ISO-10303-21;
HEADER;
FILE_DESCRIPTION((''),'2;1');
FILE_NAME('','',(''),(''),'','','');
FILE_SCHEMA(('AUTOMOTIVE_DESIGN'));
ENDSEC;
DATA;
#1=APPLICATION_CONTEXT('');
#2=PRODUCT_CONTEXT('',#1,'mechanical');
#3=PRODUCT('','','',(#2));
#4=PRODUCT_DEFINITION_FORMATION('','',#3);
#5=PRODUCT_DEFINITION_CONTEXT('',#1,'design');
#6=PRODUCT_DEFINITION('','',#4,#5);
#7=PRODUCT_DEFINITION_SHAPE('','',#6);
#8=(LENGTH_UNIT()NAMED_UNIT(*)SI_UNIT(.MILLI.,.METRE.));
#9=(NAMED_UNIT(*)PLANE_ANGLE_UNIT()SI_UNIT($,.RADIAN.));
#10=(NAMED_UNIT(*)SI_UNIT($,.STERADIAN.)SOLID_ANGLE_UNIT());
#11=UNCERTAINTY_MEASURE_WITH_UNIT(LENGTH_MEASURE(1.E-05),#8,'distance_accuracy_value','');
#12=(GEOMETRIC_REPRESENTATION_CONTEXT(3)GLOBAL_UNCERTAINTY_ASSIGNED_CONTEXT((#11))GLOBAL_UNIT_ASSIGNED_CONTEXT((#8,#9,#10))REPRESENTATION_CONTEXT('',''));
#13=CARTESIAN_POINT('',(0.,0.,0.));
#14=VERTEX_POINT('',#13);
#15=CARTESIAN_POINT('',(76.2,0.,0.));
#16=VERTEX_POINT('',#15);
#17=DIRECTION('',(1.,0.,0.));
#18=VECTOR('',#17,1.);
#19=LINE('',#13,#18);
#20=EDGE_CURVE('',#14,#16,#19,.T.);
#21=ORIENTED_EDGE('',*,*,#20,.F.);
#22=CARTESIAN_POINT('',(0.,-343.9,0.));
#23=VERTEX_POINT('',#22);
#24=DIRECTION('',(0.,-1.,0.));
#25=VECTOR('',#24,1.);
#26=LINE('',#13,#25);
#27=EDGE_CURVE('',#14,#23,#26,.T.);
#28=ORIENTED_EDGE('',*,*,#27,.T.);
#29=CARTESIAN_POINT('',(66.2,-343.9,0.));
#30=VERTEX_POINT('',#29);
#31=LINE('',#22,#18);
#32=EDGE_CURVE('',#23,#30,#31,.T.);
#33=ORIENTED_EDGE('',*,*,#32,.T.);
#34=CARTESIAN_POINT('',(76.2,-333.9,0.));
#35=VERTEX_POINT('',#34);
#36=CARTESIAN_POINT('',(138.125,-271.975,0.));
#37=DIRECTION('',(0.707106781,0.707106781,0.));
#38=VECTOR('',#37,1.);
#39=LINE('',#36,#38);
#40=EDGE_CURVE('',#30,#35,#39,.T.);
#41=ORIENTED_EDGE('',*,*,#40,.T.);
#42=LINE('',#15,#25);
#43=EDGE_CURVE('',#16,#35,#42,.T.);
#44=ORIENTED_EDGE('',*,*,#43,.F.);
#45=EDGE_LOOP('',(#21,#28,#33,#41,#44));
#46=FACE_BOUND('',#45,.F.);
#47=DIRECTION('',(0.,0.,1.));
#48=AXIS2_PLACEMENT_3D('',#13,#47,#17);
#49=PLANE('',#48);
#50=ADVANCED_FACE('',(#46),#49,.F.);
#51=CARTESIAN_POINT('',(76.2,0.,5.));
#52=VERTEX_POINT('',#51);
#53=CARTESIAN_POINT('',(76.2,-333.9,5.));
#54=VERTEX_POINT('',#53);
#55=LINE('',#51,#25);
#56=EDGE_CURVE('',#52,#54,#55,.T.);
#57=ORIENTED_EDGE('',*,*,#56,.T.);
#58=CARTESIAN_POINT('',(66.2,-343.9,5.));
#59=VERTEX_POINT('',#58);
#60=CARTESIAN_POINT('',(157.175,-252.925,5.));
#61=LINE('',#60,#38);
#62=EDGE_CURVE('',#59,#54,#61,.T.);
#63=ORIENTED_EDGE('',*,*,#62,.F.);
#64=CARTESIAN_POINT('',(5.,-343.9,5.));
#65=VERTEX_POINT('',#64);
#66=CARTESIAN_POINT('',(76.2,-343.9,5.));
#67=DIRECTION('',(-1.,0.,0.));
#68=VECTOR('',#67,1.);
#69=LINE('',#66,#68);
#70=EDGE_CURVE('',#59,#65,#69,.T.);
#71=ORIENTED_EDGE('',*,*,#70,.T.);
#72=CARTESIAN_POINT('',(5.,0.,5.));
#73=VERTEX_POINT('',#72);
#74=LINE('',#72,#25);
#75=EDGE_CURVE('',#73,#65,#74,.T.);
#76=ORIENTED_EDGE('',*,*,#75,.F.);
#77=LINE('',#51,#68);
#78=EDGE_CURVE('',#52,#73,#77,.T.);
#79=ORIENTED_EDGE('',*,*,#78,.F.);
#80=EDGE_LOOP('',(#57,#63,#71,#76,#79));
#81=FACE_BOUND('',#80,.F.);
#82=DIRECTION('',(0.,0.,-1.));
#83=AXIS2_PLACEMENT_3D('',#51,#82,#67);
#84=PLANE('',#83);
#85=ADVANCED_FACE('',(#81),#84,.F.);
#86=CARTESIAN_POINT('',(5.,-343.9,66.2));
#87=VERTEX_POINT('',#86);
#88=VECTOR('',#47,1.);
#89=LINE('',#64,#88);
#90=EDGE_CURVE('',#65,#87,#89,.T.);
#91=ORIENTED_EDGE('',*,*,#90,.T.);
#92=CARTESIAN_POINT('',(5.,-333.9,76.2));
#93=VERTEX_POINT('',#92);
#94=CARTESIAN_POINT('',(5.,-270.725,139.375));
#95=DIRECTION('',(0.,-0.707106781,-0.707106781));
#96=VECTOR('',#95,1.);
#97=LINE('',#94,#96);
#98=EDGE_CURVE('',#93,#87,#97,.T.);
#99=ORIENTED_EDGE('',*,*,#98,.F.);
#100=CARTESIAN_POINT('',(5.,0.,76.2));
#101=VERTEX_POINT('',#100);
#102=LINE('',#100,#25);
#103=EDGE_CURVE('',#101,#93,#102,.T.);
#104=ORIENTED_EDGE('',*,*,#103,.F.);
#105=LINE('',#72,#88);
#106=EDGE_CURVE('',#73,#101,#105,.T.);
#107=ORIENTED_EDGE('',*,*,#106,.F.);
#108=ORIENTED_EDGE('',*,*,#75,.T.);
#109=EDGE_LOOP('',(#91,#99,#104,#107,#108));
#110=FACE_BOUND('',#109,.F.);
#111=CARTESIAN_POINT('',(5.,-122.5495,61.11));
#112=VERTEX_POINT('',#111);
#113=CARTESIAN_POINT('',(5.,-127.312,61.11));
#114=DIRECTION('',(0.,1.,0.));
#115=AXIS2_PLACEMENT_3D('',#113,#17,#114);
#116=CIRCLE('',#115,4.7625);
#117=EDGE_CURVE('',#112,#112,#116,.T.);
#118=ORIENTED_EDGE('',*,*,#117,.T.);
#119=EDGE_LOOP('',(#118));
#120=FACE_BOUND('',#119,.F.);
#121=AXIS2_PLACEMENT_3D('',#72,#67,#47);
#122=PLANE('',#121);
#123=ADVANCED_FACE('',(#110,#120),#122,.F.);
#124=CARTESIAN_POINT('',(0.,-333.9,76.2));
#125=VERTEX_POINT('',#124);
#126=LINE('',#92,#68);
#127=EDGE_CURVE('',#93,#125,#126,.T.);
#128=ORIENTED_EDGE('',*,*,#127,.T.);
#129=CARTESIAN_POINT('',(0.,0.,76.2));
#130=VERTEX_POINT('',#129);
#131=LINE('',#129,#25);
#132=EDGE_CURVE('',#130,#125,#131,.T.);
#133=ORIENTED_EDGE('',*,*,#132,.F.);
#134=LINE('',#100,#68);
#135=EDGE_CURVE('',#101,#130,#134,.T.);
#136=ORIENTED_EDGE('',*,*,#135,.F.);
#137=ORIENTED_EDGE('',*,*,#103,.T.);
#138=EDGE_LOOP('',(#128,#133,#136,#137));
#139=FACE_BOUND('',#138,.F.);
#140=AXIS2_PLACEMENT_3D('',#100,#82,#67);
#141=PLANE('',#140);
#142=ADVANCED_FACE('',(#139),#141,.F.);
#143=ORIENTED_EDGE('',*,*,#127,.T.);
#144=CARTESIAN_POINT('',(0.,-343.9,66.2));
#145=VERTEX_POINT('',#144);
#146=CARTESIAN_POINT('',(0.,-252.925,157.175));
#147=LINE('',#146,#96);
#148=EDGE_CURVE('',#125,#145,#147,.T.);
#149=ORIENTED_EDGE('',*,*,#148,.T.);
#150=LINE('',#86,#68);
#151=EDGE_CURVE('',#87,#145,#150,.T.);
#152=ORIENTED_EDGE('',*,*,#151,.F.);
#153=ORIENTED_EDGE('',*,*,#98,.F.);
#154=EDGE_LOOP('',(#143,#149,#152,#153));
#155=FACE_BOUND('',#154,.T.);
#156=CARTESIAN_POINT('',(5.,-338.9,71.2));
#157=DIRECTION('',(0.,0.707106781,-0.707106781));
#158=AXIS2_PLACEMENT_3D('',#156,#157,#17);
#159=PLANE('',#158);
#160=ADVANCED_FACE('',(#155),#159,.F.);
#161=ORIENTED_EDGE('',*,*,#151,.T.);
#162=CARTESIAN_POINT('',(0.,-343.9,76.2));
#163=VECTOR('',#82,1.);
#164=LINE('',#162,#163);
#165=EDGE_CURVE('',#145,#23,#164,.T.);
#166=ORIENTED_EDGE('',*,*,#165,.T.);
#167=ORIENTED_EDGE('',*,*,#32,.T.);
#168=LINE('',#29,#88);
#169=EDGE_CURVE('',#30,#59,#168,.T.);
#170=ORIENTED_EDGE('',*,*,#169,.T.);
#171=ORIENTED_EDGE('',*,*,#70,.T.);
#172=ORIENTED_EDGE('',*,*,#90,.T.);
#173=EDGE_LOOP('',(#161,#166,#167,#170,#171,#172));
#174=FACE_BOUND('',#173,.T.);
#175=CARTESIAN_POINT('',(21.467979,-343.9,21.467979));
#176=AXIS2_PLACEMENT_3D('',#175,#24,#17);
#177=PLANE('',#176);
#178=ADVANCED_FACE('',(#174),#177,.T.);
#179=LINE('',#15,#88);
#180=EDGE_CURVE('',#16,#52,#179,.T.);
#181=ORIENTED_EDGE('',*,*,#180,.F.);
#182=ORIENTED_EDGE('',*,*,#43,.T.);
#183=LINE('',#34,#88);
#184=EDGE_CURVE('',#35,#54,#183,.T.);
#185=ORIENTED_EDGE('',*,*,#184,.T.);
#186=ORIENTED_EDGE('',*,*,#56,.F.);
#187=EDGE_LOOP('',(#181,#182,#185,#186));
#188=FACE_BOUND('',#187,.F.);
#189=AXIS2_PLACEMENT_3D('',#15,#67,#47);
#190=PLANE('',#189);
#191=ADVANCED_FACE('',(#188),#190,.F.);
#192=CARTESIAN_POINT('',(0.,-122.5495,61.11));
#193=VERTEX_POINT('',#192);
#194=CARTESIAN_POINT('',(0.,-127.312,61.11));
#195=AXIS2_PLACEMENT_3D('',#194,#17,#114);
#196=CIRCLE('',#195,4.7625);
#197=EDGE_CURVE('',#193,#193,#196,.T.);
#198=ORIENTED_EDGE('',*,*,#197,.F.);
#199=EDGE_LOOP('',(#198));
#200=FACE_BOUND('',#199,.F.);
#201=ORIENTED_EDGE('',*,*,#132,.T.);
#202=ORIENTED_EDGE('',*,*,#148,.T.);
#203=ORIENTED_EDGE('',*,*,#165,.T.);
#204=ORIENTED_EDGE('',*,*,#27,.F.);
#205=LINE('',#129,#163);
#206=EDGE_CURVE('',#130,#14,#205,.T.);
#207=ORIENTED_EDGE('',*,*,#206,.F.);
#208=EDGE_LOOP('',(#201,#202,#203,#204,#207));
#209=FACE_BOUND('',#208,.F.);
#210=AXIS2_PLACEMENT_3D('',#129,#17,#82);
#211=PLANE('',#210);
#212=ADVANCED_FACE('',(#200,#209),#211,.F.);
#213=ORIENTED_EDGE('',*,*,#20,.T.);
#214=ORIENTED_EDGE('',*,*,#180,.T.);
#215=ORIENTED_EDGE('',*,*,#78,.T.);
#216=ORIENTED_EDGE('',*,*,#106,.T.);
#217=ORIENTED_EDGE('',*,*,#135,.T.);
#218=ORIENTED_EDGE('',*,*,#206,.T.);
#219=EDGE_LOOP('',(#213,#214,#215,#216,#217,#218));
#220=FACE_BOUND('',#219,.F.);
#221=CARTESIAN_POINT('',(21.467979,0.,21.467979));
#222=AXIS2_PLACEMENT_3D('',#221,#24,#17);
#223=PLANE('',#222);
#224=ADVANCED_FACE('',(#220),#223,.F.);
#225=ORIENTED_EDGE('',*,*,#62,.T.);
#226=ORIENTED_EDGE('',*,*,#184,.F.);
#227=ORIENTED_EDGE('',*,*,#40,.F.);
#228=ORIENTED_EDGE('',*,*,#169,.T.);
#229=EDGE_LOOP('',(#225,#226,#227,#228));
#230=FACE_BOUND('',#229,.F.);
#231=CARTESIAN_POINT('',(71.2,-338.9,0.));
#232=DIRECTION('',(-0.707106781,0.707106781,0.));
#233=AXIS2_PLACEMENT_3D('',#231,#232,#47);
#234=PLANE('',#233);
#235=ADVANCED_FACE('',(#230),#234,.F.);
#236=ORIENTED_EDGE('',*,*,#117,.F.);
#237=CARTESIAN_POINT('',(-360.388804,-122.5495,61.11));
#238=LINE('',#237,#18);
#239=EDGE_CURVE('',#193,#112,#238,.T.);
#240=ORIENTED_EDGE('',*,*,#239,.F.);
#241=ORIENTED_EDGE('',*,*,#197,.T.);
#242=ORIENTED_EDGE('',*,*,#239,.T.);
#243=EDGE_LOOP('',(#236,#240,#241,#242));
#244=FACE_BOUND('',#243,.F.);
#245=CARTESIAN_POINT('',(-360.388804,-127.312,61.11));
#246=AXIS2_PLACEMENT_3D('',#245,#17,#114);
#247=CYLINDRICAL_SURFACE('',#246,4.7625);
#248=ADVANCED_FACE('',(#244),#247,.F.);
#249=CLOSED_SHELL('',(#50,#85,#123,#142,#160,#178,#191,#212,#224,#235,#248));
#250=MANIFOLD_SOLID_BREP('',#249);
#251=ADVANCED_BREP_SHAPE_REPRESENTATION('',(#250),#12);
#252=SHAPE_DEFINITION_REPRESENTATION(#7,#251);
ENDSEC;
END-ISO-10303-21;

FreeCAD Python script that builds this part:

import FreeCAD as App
import Part
import Sketcher
from FreeCAD import Vector
Q = App.Units.Quantity


def edges_at(feature, points):
    """Names of the edges that pass closest to the given points."""
    edges = feature.Shape.Edges
    near = lambda p: min(range(len(edges)), key=lambda i: edges[i].distToShape(Part.Vertex(*p))[0])
    return sorted({f"Edge{near(p) + 1}" for p in points})

doc = App.newDocument("Part")
params = doc.addObject("Spreadsheet::Sheet", "Params")
for row, (alias, value) in enumerate([
    ("sketch1_width", "5 mm"),
    ("sketch1_width2", "76.2 mm"),
    ("pad1_length", "343.9 mm"),
    ("hole_diameter", "9.525 mm"),
    ("chamfer_size", "10 mm"),
], start=1):
    params.set(f"A{row}", alias)
    params.set(f"B{row}", "=" + value)
    params.setAlias(f"B{row}", alias)

body = doc.addObject("PartDesign::Body", "Body")

sketch1 = doc.addObject("Sketcher::SketchObject", "Sketch")
body.addObject(sketch1)
sketch1.AttachmentSupport = (doc.XZ_Plane, [""])
sketch1.MapMode = "FlatFace"
sketch1.addGeometry([
    Part.LineSegment(Vector(0, 76, 0), Vector(0, 0, 0)),
    Part.LineSegment(Vector(0, 0, 0), Vector(76, 0, 0)),
    Part.LineSegment(Vector(76, 0, 0), Vector(76, 5, 0)),
    Part.LineSegment(Vector(76, 5, 0), Vector(5, 5, 0)),
    Part.LineSegment(Vector(5, 5, 0), Vector(5, 76, 0)),
    Part.LineSegment(Vector(5, 76, 0), Vector(0, 76, 0)),
], False)
sketch1.addConstraint([
    Sketcher.Constraint("Coincident", 0, 2, 1, 1),
    Sketcher.Constraint("Coincident", 1, 2, 2, 1),
    Sketcher.Constraint("Coincident", 2, 2, 3, 1),
    Sketcher.Constraint("Coincident", 3, 2, 4, 1),
    Sketcher.Constraint("Coincident", 4, 2, 5, 1),
    Sketcher.Constraint("Coincident", 5, 2, 0, 1),
    Sketcher.Constraint("Vertical", 0),
    Sketcher.Constraint("Horizontal", 1),
    Sketcher.Constraint("Vertical", 2),
    Sketcher.Constraint("Horizontal", 3),
    Sketcher.Constraint("Vertical", 4),
    Sketcher.Constraint("Horizontal", 5),
    Sketcher.Constraint("Coincident", 0, 2, -1, 1),
    Sketcher.Constraint("Equal", 1, 0),
    Sketcher.Constraint("Equal", 5, 2),
    Sketcher.Constraint("DistanceX", 5, 2, 5, 1, Q("5 mm")),
    Sketcher.Constraint("DistanceX", 1, 1, 1, 2, Q("76.2 mm")),
])
sketch1.setExpression("Constraints[15]", "Params.sketch1_width")
sketch1.setExpression("Constraints[16]", "Params.sketch1_width2")
pad1 = doc.addObject("PartDesign::Pad", "Pad")
body.addObject(pad1)
pad1.Profile = sketch1
pad1.setExpression("Length", "Params.pad1_length")

sketch2 = doc.addObject("Sketcher::SketchObject", "Sketch001")
body.addObject(sketch2)
sketch2.AttachmentSupport = (doc.YZ_Plane, [""])
sketch2.MapMode = "FlatFace"
sketch2.addGeometry(Part.Circle(Vector(-127.3, 61.1, 0), Vector(0, 0, 1), 4.8), False)
sketch2.addConstraint([
    Sketcher.Constraint("Diameter", 0, Q("9.525 mm")),
    Sketcher.Constraint("DistanceY", -1, 1, 0, 3, Q("61.11 mm")),
    Sketcher.Constraint("DistanceX", 0, 3, -1, 1, Q("127.312 mm")),
])
doc.recompute()
hole = doc.addObject("PartDesign::Hole", "Hole")
body.addObject(hole)
hole.Profile = sketch2
hole.ThreadType = "None"
hole.setExpression("Diameter", "Params.hole_diameter")
hole.DepthType = "ThroughAll"
hole.Reversed = True
doc.recompute()

chamfer = doc.addObject("PartDesign::Chamfer", "Chamfer")
body.addObject(chamfer)
chamfer.Base = (hole, edges_at(hole, [(76.2, -343.9, 2.5), (2.5, -343.9, 76.2)]))
chamfer.setExpression("Size", "Params.chamfer_size")

doc.recompute()
